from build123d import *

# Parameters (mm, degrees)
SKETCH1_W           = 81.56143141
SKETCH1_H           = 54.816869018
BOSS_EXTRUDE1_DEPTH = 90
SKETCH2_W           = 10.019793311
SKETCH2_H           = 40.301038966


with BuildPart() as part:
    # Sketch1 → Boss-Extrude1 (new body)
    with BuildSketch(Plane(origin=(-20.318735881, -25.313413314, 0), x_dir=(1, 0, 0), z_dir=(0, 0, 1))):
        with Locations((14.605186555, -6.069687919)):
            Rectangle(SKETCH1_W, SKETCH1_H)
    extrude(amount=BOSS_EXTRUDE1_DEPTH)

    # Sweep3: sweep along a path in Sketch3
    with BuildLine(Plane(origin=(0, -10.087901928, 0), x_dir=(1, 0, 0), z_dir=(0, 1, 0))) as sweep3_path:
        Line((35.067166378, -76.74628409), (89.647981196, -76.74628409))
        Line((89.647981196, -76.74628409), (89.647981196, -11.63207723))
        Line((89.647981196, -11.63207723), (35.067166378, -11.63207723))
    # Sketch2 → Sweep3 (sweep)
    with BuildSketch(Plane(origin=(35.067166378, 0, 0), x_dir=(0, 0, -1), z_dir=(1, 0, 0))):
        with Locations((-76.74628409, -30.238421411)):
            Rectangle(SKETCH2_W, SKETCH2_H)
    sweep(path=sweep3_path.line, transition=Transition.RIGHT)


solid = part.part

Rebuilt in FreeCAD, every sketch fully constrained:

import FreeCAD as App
import Part
import Sketcher
Q = App.Units.Quantity

doc = App.newDocument("Part")
body = doc.addObject("PartDesign::Body", "Body")

sketch1 = doc.addObject("Sketcher::SketchObject", "Sketch")
body.addObject(sketch1)
sketch1.AttachmentSupport = (doc.XY_Plane, [""])
sketch1.MapMode = "FlatFace"
sketch1.addGeometry(Part.LineSegment(App.Vector(-46.494265, -3.974667, 0), App.Vector(-46.494265, -58.791536, 0)), False)
sketch1.addGeometry(Part.LineSegment(App.Vector(-46.494265, -58.791536, 0), App.Vector(35.067166, -58.791536, 0)), False)
sketch1.addGeometry(Part.LineSegment(App.Vector(35.067166, -58.791536, 0), App.Vector(35.067166, -3.974667, 0)), False)
sketch1.addGeometry(Part.LineSegment(App.Vector(35.067166, -3.974667, 0), App.Vector(-46.494265, -3.974667, 0)), False)
sketch1.addConstraint(Sketcher.Constraint("Coincident", 0, 2, 1, 1))
sketch1.addConstraint(Sketcher.Constraint("Coincident", 1, 2, 2, 1))
sketch1.addConstraint(Sketcher.Constraint("Coincident", 2, 2, 3, 1))
sketch1.addConstraint(Sketcher.Constraint("Coincident", 3, 2, 0, 1))
sketch1.addConstraint(Sketcher.Constraint("Vertical", 0))
sketch1.addConstraint(Sketcher.Constraint("Horizontal", 1))
sketch1.addConstraint(Sketcher.Constraint("Vertical", 2))
sketch1.addConstraint(Sketcher.Constraint("Horizontal", 3))
sketch1.addConstraint(Sketcher.Constraint("DistanceX", 1, 1, 1, 2, Q("81.561431 mm")))
sketch1.addConstraint(Sketcher.Constraint("DistanceY", 0, 2, 0, 1, Q("54.816869 mm")))
sketch1.addConstraint(Sketcher.Constraint("DistanceX", 0, 2, -1, 1, Q("46.494265 mm")))
sketch1.addConstraint(Sketcher.Constraint("DistanceY", 0, 2, -1, 1, Q("58.791536 mm")))
pad1 = doc.addObject("PartDesign::Pad", "Pad")
body.addObject(pad1)
pad1.Profile = sketch1
pad1.Length = 90

sketch2 = doc.addObject("Sketcher::SketchObject", "Sketch001")
body.addObject(sketch2)
sketch2.AttachmentSupport = (doc.YZ_Plane, [""])
sketch2.MapMode = "FlatFace"
sketch2.AttachmentOffset = App.Placement(App.Vector(0, 0, 35.067166), App.Rotation())
sketch2.addGeometry(Part.LineSegment(App.Vector(-10.087902, 81.756181, 0), App.Vector(-50.388941, 81.756181, 0)), False)
sketch2.addGeometry(Part.LineSegment(App.Vector(-50.388941, 81.756181, 0), App.Vector(-50.388941, 71.736387, 0)), False)
sketch2.addGeometry(Part.LineSegment(App.Vector(-50.388941, 71.736387, 0), App.Vector(-10.087902, 71.736387, 0)), False)
sketch2.addGeometry(Part.LineSegment(App.Vector(-10.087902, 71.736387, 0), App.Vector(-10.087902, 81.756181, 0)), False)
sketch2.addConstraint(Sketcher.Constraint("Coincident", 0, 2, 1, 1))
sketch2.addConstraint(Sketcher.Constraint("Coincident", 1, 2, 2, 1))
sketch2.addConstraint(Sketcher.Constraint("Coincident", 2, 2, 3, 1))
sketch2.addConstraint(Sketcher.Constraint("Coincident", 3, 2, 0, 1))
sketch2.addConstraint(Sketcher.Constraint("Horizontal", 0))
sketch2.addConstraint(Sketcher.Constraint("Vertical", 1))
sketch2.addConstraint(Sketcher.Constraint("Horizontal", 2))
sketch2.addConstraint(Sketcher.Constraint("Vertical", 3))
sketch2.addConstraint(Sketcher.Constraint("DistanceX", 0, 2, 0, 1, Q("40.301039 mm")))
sketch2.addConstraint(Sketcher.Constraint("DistanceX", 2, 2, -1, 1, Q("10.087902 mm")))
sketch2.addConstraint(Sketcher.Constraint("DistanceY", 1, 2, 1, 1, Q("10.019793 mm")))
sketch2.addConstraint(Sketcher.Constraint("DistanceY", -1, 1, 0, 2, Q("81.756181 mm")))

sketch3 = doc.addObject("Sketcher::SketchObject", "Sketch002")
body.addObject(sketch3)
sketch3.AttachmentSupport = (doc.XZ_Plane, [""])
sketch3.MapMode = "FlatFace"
sketch3.AttachmentOffset = App.Placement(App.Vector(0, 0, 10.087902), App.Rotation())
sketch3.addGeometry(Part.LineSegment(App.Vector(35.067166, 76.746284, 0), App.Vector(89.647981, 76.746284, 0)), False)
sketch3.addGeometry(Part.LineSegment(App.Vector(89.647981, 76.746284, 0), App.Vector(89.647981, 11.632077, 0)), False)
sketch3.addGeometry(Part.LineSegment(App.Vector(89.647981, 11.632077, 0), App.Vector(35.067166, 11.632077, 0)), False)
sketch3.addConstraint(Sketcher.Constraint("Coincident", 0, 2, 1, 1))
sketch3.addConstraint(Sketcher.Constraint("Coincident", 1, 2, 2, 1))
sketch3.addConstraint(Sketcher.Constraint("Horizontal", 0))
sketch3.addConstraint(Sketcher.Constraint("Vertical", 1))
sketch3.addConstraint(Sketcher.Constraint("Horizontal", 2))
sketch3.addConstraint(Sketcher.Constraint("Vertical", 0, 1, 2, 2))
sketch3.addConstraint(Sketcher.Constraint("DistanceX", 0, 1, 0, 2, Q("54.580815 mm")))
sketch3.addConstraint(Sketcher.Constraint("DistanceY", 1, 2, 1, 1, Q("65.114207 mm")))
sketch3.addConstraint(Sketcher.Constraint("DistanceX", -1, 1, 0, 2, Q("89.647981 mm")))
sketch3.addConstraint(Sketcher.Constraint("DistanceY", -1, 1, 0, 1, Q("76.746284 mm")))
doc.recompute()

additivepipe = doc.addObject("PartDesign::AdditivePipe", "AdditivePipe")
body.addObject(additivepipe)
additivepipe.Profile = sketch2
additivepipe.Spine = (sketch3, ["Edge1", "Edge2", "Edge3"])
additivepipe.Transition = "Right corner"

doc.recompute()
